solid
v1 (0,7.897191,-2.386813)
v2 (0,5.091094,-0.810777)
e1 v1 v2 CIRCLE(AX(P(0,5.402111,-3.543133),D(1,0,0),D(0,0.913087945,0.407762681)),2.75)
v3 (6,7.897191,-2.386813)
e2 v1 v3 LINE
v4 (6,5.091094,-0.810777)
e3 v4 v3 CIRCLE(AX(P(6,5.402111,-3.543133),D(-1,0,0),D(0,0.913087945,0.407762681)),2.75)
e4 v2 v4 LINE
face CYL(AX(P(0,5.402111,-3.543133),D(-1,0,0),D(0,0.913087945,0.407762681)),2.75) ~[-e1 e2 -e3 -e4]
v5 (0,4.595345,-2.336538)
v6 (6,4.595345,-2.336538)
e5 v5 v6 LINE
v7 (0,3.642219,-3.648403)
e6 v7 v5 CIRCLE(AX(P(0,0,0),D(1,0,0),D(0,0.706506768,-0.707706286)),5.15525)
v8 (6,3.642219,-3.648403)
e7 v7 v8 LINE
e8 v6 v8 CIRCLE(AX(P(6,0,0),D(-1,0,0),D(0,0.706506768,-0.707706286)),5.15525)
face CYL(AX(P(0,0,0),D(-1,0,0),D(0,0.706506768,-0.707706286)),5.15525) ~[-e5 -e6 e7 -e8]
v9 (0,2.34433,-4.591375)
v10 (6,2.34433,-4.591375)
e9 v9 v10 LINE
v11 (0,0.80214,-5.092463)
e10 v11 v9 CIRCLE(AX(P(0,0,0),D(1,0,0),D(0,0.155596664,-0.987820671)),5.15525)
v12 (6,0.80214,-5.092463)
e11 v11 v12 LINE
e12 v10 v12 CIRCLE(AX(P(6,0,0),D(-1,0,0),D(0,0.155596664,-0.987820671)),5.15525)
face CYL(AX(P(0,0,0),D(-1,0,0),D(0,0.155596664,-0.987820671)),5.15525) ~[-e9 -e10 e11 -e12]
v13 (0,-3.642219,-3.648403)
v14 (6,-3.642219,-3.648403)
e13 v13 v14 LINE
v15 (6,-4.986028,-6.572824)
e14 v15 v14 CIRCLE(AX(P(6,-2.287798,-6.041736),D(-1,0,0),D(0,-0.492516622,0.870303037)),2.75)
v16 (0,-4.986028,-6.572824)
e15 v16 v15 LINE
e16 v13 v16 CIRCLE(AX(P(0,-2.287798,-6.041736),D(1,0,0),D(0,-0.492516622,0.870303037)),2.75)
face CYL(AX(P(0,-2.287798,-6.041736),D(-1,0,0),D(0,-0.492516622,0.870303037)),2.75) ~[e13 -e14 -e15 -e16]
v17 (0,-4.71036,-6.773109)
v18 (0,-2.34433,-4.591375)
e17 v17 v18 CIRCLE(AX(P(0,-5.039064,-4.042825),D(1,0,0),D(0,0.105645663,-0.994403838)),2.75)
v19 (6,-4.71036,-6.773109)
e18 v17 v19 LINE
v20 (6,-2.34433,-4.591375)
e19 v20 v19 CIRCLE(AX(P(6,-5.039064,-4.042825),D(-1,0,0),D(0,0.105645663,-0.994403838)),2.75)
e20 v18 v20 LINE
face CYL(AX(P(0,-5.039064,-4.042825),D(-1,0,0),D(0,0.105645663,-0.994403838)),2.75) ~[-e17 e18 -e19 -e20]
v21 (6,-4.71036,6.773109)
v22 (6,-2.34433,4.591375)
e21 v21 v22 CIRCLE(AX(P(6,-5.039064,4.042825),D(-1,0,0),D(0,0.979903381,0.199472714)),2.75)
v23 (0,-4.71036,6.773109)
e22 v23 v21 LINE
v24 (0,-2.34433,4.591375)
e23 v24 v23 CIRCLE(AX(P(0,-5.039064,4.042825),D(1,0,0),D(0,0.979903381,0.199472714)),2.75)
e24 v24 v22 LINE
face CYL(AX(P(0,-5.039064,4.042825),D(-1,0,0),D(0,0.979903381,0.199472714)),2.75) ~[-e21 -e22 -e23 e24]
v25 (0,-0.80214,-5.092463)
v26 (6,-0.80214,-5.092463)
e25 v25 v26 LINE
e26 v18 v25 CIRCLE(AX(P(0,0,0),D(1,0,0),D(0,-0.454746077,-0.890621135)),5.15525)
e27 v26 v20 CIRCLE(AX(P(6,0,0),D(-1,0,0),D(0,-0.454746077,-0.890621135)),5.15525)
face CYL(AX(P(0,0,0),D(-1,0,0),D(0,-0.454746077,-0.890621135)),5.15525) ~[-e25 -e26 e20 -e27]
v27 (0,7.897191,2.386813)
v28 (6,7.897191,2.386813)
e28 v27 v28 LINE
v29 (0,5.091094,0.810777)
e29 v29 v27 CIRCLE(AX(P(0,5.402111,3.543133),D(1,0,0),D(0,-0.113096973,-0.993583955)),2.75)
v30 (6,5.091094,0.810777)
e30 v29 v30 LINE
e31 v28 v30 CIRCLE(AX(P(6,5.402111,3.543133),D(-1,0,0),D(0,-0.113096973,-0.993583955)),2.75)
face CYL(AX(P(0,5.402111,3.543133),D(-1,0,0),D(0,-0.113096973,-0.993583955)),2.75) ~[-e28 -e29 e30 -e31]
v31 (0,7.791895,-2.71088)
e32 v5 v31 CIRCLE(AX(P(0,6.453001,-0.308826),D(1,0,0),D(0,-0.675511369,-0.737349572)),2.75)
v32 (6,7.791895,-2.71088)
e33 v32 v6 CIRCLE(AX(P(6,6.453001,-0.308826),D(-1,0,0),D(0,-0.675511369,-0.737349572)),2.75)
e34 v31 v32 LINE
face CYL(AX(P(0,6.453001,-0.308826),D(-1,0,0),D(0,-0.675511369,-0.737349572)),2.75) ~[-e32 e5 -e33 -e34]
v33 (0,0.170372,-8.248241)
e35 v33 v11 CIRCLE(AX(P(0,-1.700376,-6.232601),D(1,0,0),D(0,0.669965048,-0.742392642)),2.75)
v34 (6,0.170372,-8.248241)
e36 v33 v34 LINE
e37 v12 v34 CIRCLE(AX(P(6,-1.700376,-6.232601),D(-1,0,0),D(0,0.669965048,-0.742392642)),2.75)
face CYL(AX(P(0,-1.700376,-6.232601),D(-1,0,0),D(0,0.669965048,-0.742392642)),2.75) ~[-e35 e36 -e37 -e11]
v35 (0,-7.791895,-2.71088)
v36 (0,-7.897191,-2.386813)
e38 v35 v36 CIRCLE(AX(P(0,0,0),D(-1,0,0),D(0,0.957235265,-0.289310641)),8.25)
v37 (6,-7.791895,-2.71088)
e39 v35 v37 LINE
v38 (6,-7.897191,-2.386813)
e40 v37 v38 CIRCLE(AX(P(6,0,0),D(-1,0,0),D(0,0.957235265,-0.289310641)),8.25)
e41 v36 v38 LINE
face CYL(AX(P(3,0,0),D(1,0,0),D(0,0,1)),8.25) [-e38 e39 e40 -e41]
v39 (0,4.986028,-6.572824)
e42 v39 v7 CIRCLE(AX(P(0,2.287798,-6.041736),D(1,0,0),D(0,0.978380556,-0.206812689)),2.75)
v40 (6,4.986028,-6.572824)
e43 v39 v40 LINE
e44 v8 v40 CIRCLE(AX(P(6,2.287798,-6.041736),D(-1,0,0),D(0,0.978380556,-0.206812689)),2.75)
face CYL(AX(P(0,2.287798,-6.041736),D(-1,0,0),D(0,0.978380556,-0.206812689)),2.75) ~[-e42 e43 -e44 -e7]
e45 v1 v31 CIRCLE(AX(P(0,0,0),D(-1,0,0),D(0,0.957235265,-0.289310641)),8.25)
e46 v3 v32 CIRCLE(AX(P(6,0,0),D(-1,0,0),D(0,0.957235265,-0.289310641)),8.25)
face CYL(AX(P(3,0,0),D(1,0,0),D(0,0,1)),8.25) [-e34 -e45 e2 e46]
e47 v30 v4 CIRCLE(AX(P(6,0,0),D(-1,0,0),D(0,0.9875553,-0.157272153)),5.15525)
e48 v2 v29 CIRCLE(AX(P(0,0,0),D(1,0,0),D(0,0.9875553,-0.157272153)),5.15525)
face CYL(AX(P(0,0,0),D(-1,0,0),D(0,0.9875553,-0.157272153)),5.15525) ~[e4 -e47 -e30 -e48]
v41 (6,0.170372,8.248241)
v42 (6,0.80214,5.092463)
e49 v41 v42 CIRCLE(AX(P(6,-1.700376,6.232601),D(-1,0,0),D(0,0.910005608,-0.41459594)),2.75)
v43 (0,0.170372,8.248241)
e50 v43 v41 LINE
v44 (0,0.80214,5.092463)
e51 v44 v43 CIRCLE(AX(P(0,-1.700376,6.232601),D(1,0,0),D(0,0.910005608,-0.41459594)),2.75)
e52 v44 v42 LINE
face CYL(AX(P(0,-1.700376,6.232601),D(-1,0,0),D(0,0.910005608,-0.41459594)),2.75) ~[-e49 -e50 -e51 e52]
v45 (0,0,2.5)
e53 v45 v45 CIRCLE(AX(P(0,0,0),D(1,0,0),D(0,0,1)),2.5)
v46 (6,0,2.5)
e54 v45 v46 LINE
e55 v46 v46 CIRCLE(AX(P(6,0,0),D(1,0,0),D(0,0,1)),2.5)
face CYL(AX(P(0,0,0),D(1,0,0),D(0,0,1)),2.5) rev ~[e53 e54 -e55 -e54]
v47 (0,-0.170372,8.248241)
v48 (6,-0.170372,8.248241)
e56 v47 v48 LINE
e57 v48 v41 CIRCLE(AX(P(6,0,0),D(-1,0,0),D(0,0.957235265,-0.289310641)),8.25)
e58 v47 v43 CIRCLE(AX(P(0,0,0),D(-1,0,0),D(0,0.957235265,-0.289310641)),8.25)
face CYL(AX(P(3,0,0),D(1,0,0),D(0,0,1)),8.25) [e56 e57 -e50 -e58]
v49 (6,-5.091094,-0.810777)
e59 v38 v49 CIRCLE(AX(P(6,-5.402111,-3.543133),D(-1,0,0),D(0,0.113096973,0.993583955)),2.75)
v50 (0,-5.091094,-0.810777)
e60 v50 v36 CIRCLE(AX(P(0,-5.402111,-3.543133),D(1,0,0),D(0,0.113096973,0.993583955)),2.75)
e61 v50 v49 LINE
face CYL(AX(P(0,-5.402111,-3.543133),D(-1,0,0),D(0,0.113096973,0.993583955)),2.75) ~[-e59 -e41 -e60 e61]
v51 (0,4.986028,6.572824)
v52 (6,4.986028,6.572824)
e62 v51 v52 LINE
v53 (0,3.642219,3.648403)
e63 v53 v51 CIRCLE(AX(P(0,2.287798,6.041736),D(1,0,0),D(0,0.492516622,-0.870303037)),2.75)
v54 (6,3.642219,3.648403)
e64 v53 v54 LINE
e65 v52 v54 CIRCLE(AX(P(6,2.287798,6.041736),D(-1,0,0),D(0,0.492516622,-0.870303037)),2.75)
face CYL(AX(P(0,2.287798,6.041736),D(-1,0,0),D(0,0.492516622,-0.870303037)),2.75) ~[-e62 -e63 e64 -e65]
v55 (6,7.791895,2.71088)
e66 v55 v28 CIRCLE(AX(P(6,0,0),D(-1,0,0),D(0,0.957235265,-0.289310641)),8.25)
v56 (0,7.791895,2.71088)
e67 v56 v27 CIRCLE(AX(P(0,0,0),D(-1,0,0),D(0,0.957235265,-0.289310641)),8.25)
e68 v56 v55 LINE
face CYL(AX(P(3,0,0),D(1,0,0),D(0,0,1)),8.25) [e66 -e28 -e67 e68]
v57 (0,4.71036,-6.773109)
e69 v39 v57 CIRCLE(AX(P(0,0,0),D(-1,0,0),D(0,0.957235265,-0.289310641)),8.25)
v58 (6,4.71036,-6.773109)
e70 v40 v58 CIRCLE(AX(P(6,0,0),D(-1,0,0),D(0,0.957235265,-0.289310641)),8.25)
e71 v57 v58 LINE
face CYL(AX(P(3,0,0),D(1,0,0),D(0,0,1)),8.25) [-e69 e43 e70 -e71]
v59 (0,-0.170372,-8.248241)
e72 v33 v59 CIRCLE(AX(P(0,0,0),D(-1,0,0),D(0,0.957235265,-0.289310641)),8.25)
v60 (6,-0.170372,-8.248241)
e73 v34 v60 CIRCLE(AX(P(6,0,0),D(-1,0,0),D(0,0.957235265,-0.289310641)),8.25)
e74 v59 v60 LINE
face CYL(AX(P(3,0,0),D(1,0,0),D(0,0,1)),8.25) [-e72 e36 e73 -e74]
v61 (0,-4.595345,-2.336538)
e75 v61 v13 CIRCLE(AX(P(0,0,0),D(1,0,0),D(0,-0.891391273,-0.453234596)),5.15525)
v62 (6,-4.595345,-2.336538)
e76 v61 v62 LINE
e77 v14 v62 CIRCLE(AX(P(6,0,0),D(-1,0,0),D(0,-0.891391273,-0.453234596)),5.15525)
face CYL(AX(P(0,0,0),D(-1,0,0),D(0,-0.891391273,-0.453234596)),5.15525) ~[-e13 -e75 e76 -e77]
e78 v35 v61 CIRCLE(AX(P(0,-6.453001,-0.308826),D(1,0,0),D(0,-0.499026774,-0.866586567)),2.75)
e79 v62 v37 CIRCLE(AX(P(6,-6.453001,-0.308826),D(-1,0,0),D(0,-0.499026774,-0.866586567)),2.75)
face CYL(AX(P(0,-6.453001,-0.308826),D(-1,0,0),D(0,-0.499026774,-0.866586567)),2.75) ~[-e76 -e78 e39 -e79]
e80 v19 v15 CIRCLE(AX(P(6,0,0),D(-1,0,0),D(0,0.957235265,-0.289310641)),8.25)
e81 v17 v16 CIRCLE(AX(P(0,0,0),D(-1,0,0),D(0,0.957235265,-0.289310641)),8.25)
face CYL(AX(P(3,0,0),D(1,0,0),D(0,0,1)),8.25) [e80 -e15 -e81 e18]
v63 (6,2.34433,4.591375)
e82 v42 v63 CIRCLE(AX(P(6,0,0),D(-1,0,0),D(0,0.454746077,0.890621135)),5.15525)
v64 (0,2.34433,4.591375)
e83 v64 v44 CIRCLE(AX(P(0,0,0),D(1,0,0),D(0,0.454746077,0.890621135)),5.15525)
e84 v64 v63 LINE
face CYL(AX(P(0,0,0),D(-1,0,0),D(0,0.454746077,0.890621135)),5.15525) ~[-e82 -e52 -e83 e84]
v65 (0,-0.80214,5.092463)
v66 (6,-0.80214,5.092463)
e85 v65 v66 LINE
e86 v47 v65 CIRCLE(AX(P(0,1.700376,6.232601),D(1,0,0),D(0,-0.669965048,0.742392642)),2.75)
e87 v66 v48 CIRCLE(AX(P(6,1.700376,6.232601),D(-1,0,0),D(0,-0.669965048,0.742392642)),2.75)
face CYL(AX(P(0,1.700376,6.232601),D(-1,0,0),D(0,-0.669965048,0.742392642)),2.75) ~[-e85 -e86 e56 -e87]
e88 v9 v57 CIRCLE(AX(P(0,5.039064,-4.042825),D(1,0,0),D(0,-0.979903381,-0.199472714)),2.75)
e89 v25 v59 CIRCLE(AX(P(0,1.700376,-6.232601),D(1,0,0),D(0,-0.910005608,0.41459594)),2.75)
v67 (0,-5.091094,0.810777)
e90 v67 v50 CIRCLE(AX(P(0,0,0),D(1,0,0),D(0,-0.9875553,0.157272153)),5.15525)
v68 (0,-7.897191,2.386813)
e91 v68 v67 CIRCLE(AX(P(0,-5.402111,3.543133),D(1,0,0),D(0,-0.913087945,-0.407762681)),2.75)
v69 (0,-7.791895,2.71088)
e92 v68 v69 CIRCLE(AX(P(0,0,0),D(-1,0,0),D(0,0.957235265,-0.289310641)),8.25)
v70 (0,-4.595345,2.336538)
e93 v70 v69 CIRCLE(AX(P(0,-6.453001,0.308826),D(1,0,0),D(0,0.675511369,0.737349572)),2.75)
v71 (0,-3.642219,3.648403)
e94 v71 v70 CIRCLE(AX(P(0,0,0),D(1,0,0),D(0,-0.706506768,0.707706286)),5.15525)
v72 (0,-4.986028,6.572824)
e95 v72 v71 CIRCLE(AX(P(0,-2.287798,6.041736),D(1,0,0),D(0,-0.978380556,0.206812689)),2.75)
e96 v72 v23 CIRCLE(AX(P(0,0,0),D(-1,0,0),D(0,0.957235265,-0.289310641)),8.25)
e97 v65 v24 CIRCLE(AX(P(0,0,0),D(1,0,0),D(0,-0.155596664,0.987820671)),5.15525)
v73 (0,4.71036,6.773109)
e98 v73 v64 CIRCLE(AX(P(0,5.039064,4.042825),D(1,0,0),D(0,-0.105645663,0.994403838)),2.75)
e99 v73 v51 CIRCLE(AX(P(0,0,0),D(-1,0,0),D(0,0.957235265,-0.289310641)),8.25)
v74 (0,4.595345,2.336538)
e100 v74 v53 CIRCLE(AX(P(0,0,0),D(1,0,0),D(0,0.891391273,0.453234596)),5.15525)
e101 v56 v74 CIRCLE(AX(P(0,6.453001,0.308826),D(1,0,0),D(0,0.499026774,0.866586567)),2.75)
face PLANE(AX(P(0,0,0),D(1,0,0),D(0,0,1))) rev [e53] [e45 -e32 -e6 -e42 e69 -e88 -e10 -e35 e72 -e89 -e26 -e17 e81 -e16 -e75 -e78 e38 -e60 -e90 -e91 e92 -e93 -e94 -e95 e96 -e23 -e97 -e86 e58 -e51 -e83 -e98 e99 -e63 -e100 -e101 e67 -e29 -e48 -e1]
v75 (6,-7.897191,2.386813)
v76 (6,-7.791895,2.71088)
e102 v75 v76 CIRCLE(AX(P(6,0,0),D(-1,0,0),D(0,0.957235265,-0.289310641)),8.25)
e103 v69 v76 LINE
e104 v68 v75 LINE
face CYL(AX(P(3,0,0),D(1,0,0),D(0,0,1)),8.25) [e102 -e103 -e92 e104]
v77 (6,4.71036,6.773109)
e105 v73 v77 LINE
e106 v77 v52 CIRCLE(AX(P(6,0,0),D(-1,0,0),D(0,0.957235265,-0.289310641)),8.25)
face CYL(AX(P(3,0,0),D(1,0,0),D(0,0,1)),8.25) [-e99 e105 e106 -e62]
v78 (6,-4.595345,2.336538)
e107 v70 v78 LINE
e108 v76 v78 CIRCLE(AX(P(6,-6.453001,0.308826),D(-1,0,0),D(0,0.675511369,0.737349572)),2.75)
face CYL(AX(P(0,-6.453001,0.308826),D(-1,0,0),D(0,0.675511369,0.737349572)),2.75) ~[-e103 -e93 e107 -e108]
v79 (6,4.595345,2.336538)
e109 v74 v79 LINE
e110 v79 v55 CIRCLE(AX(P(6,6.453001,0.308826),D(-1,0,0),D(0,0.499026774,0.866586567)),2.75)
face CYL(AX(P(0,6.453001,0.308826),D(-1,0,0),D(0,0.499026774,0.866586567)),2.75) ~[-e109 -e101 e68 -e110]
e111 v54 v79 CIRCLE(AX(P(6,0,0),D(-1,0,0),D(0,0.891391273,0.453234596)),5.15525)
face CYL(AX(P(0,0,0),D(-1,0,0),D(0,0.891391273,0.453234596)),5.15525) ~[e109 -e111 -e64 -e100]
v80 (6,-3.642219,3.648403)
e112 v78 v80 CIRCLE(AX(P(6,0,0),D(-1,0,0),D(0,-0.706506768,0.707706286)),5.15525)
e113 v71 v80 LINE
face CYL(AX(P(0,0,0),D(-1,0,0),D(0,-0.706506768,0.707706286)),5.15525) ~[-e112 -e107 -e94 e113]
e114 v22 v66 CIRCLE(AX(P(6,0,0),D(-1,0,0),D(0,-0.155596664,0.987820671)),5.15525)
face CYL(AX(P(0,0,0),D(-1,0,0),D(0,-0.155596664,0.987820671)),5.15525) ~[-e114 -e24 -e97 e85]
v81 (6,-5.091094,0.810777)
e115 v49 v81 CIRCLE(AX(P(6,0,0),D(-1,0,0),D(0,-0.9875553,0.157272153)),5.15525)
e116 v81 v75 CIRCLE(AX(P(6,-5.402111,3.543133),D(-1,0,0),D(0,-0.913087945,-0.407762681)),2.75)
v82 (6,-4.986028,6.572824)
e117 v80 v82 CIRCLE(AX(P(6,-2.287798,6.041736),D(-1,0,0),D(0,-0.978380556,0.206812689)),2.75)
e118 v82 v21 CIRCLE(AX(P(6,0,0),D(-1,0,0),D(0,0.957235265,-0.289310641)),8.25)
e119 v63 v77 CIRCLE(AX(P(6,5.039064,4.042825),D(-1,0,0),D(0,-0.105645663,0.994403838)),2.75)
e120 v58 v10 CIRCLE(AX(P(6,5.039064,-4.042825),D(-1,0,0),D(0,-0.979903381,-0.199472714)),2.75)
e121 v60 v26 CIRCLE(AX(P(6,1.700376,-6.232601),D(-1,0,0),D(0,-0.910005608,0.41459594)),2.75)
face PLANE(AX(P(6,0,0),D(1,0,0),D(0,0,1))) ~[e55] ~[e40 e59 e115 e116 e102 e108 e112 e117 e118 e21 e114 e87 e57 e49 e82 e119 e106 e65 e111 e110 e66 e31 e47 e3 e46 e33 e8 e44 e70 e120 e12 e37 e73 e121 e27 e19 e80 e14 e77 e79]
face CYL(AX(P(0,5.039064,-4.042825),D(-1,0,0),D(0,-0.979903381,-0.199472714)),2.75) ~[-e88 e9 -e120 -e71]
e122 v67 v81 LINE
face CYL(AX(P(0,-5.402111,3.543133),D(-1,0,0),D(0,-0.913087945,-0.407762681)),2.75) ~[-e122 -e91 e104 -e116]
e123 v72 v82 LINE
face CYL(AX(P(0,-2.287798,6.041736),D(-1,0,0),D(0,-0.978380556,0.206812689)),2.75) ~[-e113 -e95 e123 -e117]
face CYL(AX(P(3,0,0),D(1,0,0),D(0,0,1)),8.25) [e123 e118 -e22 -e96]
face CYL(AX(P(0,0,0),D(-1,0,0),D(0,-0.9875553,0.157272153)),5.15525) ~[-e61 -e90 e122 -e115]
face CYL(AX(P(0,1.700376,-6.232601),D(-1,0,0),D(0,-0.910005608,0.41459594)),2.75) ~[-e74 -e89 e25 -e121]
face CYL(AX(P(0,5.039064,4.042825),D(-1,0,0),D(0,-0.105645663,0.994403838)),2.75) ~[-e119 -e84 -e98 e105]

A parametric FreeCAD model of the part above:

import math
import FreeCAD as App
import Part
import Sketcher
from FreeCAD import Vector

doc = App.newDocument("Part")
body = doc.addObject("PartDesign::Body", "Body")

# Sketch on XZ plane
sketch1 = doc.addObject("Sketcher::SketchObject", "Sketch")
body.addObject(sketch1)
sketch1.AttachmentSupport = (doc.XZ_Plane, [""])
sketch1.MapMode = "FlatFace"
sketch1.addGeometry(Part.LineSegment(Vector(0, -8, 0), Vector(0, 0, 0)), False)
sketch1.addGeometry(Part.LineSegment(Vector(0, 0, 0), Vector(6, 0, 0)), False)
sketch1.addGeometry(Part.LineSegment(Vector(6, 0, 0), Vector(6, -8, 0)), False)
sketch1.addGeometry(Part.LineSegment(Vector(6, -8, 0), Vector(0, -8, 0)), False)
sketch1.addConstraint(Sketcher.Constraint("Coincident", 0, 2, 1, 1))
sketch1.addConstraint(Sketcher.Constraint("Coincident", 1, 2, 2, 1))
sketch1.addConstraint(Sketcher.Constraint("Coincident", 2, 2, 3, 1))
sketch1.addConstraint(Sketcher.Constraint("Coincident", 3, 2, 0, 1))
sketch1.addConstraint(Sketcher.Constraint("Vertical", 0))
sketch1.addConstraint(Sketcher.Constraint("Horizontal", 1))
sketch1.addConstraint(Sketcher.Constraint("Vertical", 2))
sketch1.addConstraint(Sketcher.Constraint("Horizontal", 3))
sketch1.addConstraint(Sketcher.Constraint("Coincident", 0, 2, -1, 1))
sketch1.addConstraint(Sketcher.Constraint("DistanceX", 1, 1, 1, 2, 6.0))
sketch1.addConstraint(Sketcher.Constraint("DistanceY", 0, 1, 0, 2, 8.25))
revolution = doc.addObject("PartDesign::Revolution", "Revolution")
body.addObject(revolution)
revolution.Profile = sketch1
revolution.ReferenceAxis = (sketch1, ["H_Axis"])
revolution.Angle = 360

# Sketch on YZ plane
sketch2 = doc.addObject("Sketcher::SketchObject", "Sketch001")
body.addObject(sketch2)
sketch2.AttachmentSupport = (doc.YZ_Plane, [""])
sketch2.MapMode = "FlatFace"
sketch2.addGeometry(Part.ArcOfCircle(Part.Circle(Vector(0, 0, 0), Vector(0, 0, 1), 5.2), math.radians(-9.05), math.radians(9.05)), False)
sketch2.addGeometry(Part.ArcOfCircle(Part.Circle(Vector(5.4, -3.5, 0), Vector(0, 0, 1), 2.8), math.radians(24), math.radians(96)), False)
sketch2.addGeometry(Part.ArcOfCircle(Part.Circle(Vector(0, 0, 0), Vector(0, 0, 1), 8.3), math.radians(-17), math.radians(17)), False)
sketch2.addGeometry(Part.ArcOfCircle(Part.Circle(Vector(5.4, 3.5, 0), Vector(0, 0, 1), 2.8), math.radians(-96), math.radians(-24)), False)
sketch2.addConstraint(Sketcher.Constraint("Coincident", 0, 1, 1, 2))
sketch2.addConstraint(Sketcher.Constraint("Coincident", 1, 1, 2, 1))
sketch2.addConstraint(Sketcher.Constraint("Coincident", 2, 2, 3, 2))
sketch2.addConstraint(Sketcher.Constraint("Coincident", 3, 1, 0, 2))
sketch2.addConstraint(Sketcher.Constraint("Coincident", 0, 3, -1, 1))
sketch2.addConstraint(Sketcher.Constraint("Coincident", 2, 3, -1, 1))
sketch2.addConstraint(Sketcher.Constraint("Equal", 1, 3))
sketch2.addConstraint(Sketcher.Constraint("Symmetric", 1, 3, 3, 3, -1))
sketch2.addConstraint(Sketcher.Constraint("Radius", 1, 2.75))
sketch2.addConstraint(Sketcher.Constraint("Radius", 2, 8.2754))
sketch2.addConstraint(Sketcher.Constraint("Radius", 0, 5.15525))
sketch2.addConstraint(Sketcher.Constraint("DistanceX", -1, 1, 1, 3, 5.402111))
sketch2.addConstraint(Sketcher.Constraint("DistanceY", 0, 1, 3, 3, 4.35391))
pocket1 = doc.addObject("PartDesign::Pocket", "Pocket")
body.addObject(pocket1)
pocket1.Profile = sketch2
pocket1.Type = "ThroughAll"
pocket1.Reversed = True
doc.recompute()

polarpattern = doc.addObject("PartDesign::PolarPattern", "PolarPattern")
body.addObject(polarpattern)
polarpattern.Originals = [pocket1]
polarpattern.Axis = (doc.X_Axis, [""])
polarpattern.Angle = 360
polarpattern.Occurrences = 10
body.Tip = polarpattern

# Sketch on YZ plane
sketch3 = doc.addObject("Sketcher::SketchObject", "Sketch002")
body.addObject(sketch3)
sketch3.AttachmentSupport = (doc.YZ_Plane, [""])
sketch3.MapMode = "FlatFace"
sketch3.addGeometry(Part.Circle(Vector(0, 0, 0), Vector(0, 0, 1), 2.5), False)
sketch3.addConstraint(Sketcher.Constraint("Coincident", 0, 3, -1, 1))
sketch3.addConstraint(Sketcher.Constraint("Diameter", 0, 5.0))
pocket2 = doc.addObject("PartDesign::Pocket", "Pocket001")
body.addObject(pocket2)
pocket2.Profile = sketch3
pocket2.Length = 100.000102
pocket2.Midplane = True

doc.recompute()
